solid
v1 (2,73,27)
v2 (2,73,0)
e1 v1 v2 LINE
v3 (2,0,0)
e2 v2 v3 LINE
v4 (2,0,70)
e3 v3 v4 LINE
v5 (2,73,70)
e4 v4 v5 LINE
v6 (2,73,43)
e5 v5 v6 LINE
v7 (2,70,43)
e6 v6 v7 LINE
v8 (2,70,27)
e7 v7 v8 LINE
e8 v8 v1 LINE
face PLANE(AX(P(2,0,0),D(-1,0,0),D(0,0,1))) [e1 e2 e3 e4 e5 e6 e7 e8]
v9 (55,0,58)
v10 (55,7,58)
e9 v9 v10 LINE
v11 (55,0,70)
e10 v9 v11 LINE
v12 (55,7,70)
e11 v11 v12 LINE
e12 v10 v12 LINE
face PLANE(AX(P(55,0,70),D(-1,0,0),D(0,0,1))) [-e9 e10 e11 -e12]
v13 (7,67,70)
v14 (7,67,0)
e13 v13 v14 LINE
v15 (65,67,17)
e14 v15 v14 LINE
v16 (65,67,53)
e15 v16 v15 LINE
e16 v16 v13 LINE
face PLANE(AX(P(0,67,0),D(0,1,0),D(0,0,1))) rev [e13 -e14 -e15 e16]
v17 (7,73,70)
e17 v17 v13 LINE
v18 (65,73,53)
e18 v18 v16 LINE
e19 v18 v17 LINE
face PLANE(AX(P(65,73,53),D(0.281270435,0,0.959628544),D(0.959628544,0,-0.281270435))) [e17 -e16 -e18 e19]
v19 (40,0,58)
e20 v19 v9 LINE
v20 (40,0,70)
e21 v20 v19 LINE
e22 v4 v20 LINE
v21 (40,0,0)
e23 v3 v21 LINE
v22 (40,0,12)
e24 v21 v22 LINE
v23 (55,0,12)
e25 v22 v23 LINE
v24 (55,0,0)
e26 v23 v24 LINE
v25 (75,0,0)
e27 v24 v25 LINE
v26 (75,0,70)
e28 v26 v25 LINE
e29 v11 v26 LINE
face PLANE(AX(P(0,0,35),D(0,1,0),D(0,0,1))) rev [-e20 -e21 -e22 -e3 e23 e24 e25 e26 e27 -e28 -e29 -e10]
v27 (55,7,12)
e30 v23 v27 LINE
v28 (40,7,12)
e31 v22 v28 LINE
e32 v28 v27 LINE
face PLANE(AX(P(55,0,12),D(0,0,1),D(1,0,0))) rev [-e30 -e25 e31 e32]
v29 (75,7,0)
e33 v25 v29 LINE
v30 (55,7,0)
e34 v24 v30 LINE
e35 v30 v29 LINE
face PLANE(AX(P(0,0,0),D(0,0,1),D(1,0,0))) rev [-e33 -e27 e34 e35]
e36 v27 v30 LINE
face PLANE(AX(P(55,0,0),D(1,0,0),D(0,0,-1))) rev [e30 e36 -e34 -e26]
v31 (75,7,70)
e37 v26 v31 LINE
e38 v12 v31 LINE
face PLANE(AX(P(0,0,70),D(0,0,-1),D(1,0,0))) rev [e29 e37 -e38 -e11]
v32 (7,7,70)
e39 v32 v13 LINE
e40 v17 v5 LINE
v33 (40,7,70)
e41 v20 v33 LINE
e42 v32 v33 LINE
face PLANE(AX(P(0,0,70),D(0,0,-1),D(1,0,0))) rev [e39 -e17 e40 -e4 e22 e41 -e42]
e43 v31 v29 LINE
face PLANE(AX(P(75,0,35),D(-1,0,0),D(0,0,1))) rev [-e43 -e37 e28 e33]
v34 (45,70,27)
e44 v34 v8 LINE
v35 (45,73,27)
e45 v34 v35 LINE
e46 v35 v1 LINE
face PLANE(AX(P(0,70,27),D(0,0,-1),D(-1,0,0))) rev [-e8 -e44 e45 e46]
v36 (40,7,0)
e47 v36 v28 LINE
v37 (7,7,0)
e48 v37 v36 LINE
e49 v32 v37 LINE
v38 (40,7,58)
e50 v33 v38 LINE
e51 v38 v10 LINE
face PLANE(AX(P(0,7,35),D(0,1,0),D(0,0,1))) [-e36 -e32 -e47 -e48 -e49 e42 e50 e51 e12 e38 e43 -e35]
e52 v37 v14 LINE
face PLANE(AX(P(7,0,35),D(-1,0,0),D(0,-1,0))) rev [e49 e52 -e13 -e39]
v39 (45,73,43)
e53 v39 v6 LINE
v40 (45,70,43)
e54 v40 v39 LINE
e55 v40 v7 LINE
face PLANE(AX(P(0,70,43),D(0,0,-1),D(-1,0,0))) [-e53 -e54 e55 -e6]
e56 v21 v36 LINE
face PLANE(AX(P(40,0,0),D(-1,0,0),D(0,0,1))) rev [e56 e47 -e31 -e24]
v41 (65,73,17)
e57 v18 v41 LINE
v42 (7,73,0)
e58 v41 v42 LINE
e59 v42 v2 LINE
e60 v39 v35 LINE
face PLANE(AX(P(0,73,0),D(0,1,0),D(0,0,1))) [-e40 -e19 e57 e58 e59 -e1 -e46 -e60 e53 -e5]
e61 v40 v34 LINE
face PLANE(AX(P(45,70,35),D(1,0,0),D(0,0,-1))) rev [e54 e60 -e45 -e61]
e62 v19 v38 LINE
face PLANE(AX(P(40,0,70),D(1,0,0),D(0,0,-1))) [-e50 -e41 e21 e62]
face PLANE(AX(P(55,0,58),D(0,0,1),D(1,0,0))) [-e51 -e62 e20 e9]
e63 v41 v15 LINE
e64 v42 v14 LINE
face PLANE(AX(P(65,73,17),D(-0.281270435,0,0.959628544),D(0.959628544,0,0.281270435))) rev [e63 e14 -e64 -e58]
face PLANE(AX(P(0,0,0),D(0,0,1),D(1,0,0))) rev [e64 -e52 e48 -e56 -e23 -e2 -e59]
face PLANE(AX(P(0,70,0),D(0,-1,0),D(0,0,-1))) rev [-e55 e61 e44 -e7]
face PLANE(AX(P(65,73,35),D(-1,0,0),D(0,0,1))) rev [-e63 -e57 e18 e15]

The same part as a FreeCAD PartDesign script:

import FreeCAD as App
import Part
import Sketcher
from FreeCAD import Vector
Q = App.Units.Quantity

doc = App.newDocument("Part")
body = doc.addObject("PartDesign::Body", "Body")

# Sketch on XY plane
sketch1 = doc.addObject("Sketcher::SketchObject", "Sketch")
body.addObject(sketch1)
sketch1.AttachmentSupport = (doc.XY_Plane, [""])
sketch1.MapMode = "FlatFace"
sketch1.addGeometry([
    Part.LineSegment(Vector(0, 67, 0), Vector(0, 0, 0)),  # 0
    Part.LineSegment(Vector(0, 0, 0), Vector(75, 0, 0)),  # 1
    Part.LineSegment(Vector(75, 0, 0), Vector(75, 7, 0)),  # 2
    Part.LineSegment(Vector(75, 7, 0), Vector(7, 7, 0)),  # 3
    Part.LineSegment(Vector(7, 7, 0), Vector(7, 67, 0)),  # 4
    Part.LineSegment(Vector(7, 67, 0), Vector(0, 67, 0)),  # 5
], False)
sketch1.addConstraint([
    Sketcher.Constraint("Coincident", 0, 2, 1, 1),
    Sketcher.Constraint("Coincident", 1, 2, 2, 1),
    Sketcher.Constraint("Coincident", 2, 2, 3, 1),
    Sketcher.Constraint("Coincident", 3, 2, 4, 1),
    Sketcher.Constraint("Coincident", 4, 2, 5, 1),
    Sketcher.Constraint("Coincident", 5, 2, 0, 1),
    Sketcher.Constraint("Vertical", 0),
    Sketcher.Constraint("Horizontal", 1),
    Sketcher.Constraint("Vertical", 2),
    Sketcher.Constraint("Horizontal", 3),
    Sketcher.Constraint("Vertical", 4),
    Sketcher.Constraint("Horizontal", 5),
    Sketcher.Constraint("Coincident", 0, 2, -1, 1),
    Sketcher.Constraint("Equal", 5, 2),
    Sketcher.Constraint("DistanceX", 1, 1, 1, 2, Q("75 mm")),
    Sketcher.Constraint("DistanceX", 3, 2, 3, 1, Q("68 mm")),
    Sketcher.Constraint("DistanceY", 0, 2, 0, 1, Q("67 mm")),
])
pad1 = doc.addObject("PartDesign::Pad", "Pad")
body.addObject(pad1)
pad1.Profile = sketch1
pad1.Length = 35

# Sketch on XZ plane
sketch2 = doc.addObject("Sketcher::SketchObject", "Sketch001")
body.addObject(sketch2)
sketch2.AttachmentSupport = (doc.XZ_Plane, [""])
sketch2.MapMode = "FlatFace"
sketch2.AttachmentOffset = App.Placement(Vector(0, 0, -67), App.Rotation())
sketch2.addGeometry([
    Part.LineSegment(Vector(0, 35, 0), Vector(65, 35, 0)),  # 0
    Part.LineSegment(Vector(65, 35, 0), Vector(65, 17, 0)),  # 1
    Part.LineSegment(Vector(65, 17, 0), Vector(7, 0, 0)),  # 2
    Part.LineSegment(Vector(7, 0, 0), Vector(0, 0, 0)),  # 3
    Part.LineSegment(Vector(0, 0, 0), Vector(0, 35, 0)),  # 4
], False)
sketch2.addConstraint([
    Sketcher.Constraint("Coincident", 0, 2, 1, 1),
    Sketcher.Constraint("Coincident", 1, 2, 2, 1),
    Sketcher.Constraint("Coincident", 2, 2, 3, 1),
    Sketcher.Constraint("Coincident", 3, 2, 4, 1),
    Sketcher.Constraint("Coincident", 4, 2, 0, 1),
    Sketcher.Constraint("Horizontal", 0),
    Sketcher.Constraint("Vertical", 1),
    Sketcher.Constraint("Horizontal", 3),
    Sketcher.Constraint("Vertical", 4),
    Sketcher.Constraint("Coincident", 3, 2, -1, 1),
    Sketcher.Constraint("DistanceX", 0, 1, 0, 2, Q("65 mm")),
    Sketcher.Constraint("DistanceX", 3, 2, 3, 1, Q("7 mm")),
    Sketcher.Constraint("DistanceY", 1, 2, 1, 1, Q("18 mm")),
    Sketcher.Constraint("DistanceY", 4, 1, 4, 2, Q("35 mm")),
])
pad2 = doc.addObject("PartDesign::Pad", "Pad001")
body.addObject(pad2)
pad2.Profile = sketch2
pad2.Length = 6
pad2.Reversed = True

# Sketch on XZ plane
sketch3 = doc.addObject("Sketcher::SketchObject", "Sketch002")
body.addObject(sketch3)
sketch3.AttachmentSupport = (doc.XZ_Plane, [""])
sketch3.MapMode = "FlatFace"
sketch3.AttachmentOffset = App.Placement(Vector(0, 0, -73), App.Rotation())
sketch3.addGeometry([
    Part.LineSegment(Vector(0, 27, 0), Vector(0, 35, 0)),
    Part.LineSegment(Vector(0, 35, 0), Vector(45, 35, 0)),
    Part.LineSegment(Vector(45, 35, 0), Vector(45, 27, 0)),
    Part.LineSegment(Vector(45, 27, 0), Vector(0, 27, 0)),
], False)
sketch3.addConstraint([
    Sketcher.Constraint("Coincident", 0, 2, 1, 1),
    Sketcher.Constraint("Coincident", 1, 2, 2, 1),
    Sketcher.Constraint("Coincident", 2, 2, 3, 1),
    Sketcher.Constraint("Coincident", 3, 2, 0, 1),
    Sketcher.Constraint("Vertical", 0),
    Sketcher.Constraint("Horizontal", 1),
    Sketcher.Constraint("Vertical", 2),
    Sketcher.Constraint("Horizontal", 3),
    Sketcher.Constraint("PointOnObject", 0, 2, -2),
    Sketcher.Constraint("DistanceX", 1, 1, 1, 2, Q("45 mm")),
    Sketcher.Constraint("DistanceY", 0, 1, 0, 2, Q("8 mm")),
    Sketcher.Constraint("DistanceY", -1, 1, 0, 2, Q("35 mm")),
])
pocket1 = doc.addObject("PartDesign::Pocket", "Pocket")
body.addObject(pocket1)
pocket1.Profile = sketch3
pocket1.Length = 3
pocket1.Reversed = True

# Sketch on XZ plane
sketch4 = doc.addObject("Sketcher::SketchObject", "Sketch003")
body.addObject(sketch4)
sketch4.AttachmentSupport = (doc.XZ_Plane, [""])
sketch4.MapMode = "FlatFace"
sketch4.AttachmentOffset = App.Placement(Vector(0, 0, -7), App.Rotation())
sketch4.addGeometry([
    Part.LineSegment(Vector(40, 0, 0), Vector(40, 12, 0)),
    Part.LineSegment(Vector(40, 12, 0), Vector(55, 12, 0)),
    Part.LineSegment(Vector(55, 12, 0), Vector(55, 0, 0)),
    Part.LineSegment(Vector(55, 0, 0), Vector(40, 0, 0)),
], False)
sketch4.addConstraint([
    Sketcher.Constraint("Coincident", 0, 2, 1, 1),
    Sketcher.Constraint("Coincident", 1, 2, 2, 1),
    Sketcher.Constraint("Coincident", 2, 2, 3, 1),
    Sketcher.Constraint("Coincident", 3, 2, 0, 1),
    Sketcher.Constraint("Vertical", 0),
    Sketcher.Constraint("Horizontal", 1),
    Sketcher.Constraint("Vertical", 2),
    Sketcher.Constraint("Horizontal", 3),
    Sketcher.Constraint("PointOnObject", 2, 2, -1),
    Sketcher.Constraint("DistanceX", 1, 1, 1, 2, Q("15 mm")),
    Sketcher.Constraint("DistanceY", 0, 1, 0, 2, Q("12 mm")),
    Sketcher.Constraint("DistanceX", -1, 1, 0, 2, Q("40 mm")),
])
pocket2 = doc.addObject("PartDesign::Pocket", "Pocket001")
body.addObject(pocket2)
pocket2.Profile = sketch4
pocket2.Type = "ThroughAll"
pocket2.Reversed = True
doc.recompute()

datumplane = doc.addObject("PartDesign::Plane", "DatumPlane")
body.addObject(datumplane)
datumplane.AttachmentSupport = (doc.XY_Plane, [""])
datumplane.MapMode = "FlatFace"
datumplane.AttachmentOffset = App.Placement(Vector(0, 0, 35), App.Rotation())
mirrored = doc.addObject("PartDesign::Mirrored", "Mirrored")
body.addObject(mirrored)
mirrored.Originals = [pad1, pad2, pocket1, pocket2]
mirrored.MirrorPlane = (datumplane, [""])
body.Tip = mirrored

# Sketch on YZ plane
sketch5 = doc.addObject("Sketcher::SketchObject", "Sketch004")
body.addObject(sketch5)
sketch5.AttachmentSupport = (doc.YZ_Plane, [""])
sketch5.MapMode = "FlatFace"
sketch5.addGeometry([
    Part.LineSegment(Vector(73, 70, 0), Vector(73, 43, 0)),  # 0
    Part.LineSegment(Vector(73, 43, 0), Vector(70, 43, 0)),  # 1
    Part.LineSegment(Vector(70, 43, 0), Vector(70, 27, 0)),  # 2
    Part.LineSegment(Vector(70, 27, 0), Vector(73, 27, 0)),  # 3
    Part.LineSegment(Vector(73, 27, 0), Vector(73, 0, 0)),  # 4
    Part.LineSegment(Vector(73, 0, 0), Vector(0, 0, 0)),  # 5
    Part.LineSegment(Vector(0, 0, 0), Vector(0, 70, 0)),  # 6
    Part.LineSegment(Vector(0, 70, 0), Vector(73, 70, 0)),  # 7
], False)
sketch5.addConstraint([
    Sketcher.Constraint("Coincident", 0, 2, 1, 1),
    Sketcher.Constraint("Coincident", 1, 2, 2, 1),
    Sketcher.Constraint("Coincident", 2, 2, 3, 1),
    Sketcher.Constraint("Coincident", 3, 2, 4, 1),
    Sketcher.Constraint("Coincident", 4, 2, 5, 1),
    Sketcher.Constraint("Coincident", 5, 2, 6, 1),
    Sketcher.Constraint("Coincident", 6, 2, 7, 1),
    Sketcher.Constraint("Coincident", 7, 2, 0, 1),
    Sketcher.Constraint("Vertical", 0),
    Sketcher.Constraint("Horizontal", 1),
    Sketcher.Constraint("Vertical", 2),
    Sketcher.Constraint("Horizontal", 3),
    Sketcher.Constraint("Vertical", 4),
    Sketcher.Constraint("Horizontal", 5),
    Sketcher.Constraint("Vertical", 6),
    Sketcher.Constraint("Horizontal", 7),
    Sketcher.Constraint("Coincident", 5, 2, -1, 1),
    Sketcher.Constraint("Vertical", 0, 2, 3, 2),
    Sketcher.Constraint("Equal", 0, 4),
    Sketcher.Constraint("DistanceX", 1, 2, 1, 1, Q("3 mm")),
    Sketcher.Constraint("DistanceX", 5, 2, 5, 1, Q("73 mm")),
    Sketcher.Constraint("DistanceY", 0, 2, 0, 1, Q("27 mm")),
    Sketcher.Constraint("DistanceY", 2, 2, 2, 1, Q("16 mm")),
])
pocket3 = doc.addObject("PartDesign::Pocket", "Pocket002")
body.addObject(pocket3)
pocket3.Profile = sketch5
pocket3.Length = 2
pocket3.Reversed = True

doc.recompute()
